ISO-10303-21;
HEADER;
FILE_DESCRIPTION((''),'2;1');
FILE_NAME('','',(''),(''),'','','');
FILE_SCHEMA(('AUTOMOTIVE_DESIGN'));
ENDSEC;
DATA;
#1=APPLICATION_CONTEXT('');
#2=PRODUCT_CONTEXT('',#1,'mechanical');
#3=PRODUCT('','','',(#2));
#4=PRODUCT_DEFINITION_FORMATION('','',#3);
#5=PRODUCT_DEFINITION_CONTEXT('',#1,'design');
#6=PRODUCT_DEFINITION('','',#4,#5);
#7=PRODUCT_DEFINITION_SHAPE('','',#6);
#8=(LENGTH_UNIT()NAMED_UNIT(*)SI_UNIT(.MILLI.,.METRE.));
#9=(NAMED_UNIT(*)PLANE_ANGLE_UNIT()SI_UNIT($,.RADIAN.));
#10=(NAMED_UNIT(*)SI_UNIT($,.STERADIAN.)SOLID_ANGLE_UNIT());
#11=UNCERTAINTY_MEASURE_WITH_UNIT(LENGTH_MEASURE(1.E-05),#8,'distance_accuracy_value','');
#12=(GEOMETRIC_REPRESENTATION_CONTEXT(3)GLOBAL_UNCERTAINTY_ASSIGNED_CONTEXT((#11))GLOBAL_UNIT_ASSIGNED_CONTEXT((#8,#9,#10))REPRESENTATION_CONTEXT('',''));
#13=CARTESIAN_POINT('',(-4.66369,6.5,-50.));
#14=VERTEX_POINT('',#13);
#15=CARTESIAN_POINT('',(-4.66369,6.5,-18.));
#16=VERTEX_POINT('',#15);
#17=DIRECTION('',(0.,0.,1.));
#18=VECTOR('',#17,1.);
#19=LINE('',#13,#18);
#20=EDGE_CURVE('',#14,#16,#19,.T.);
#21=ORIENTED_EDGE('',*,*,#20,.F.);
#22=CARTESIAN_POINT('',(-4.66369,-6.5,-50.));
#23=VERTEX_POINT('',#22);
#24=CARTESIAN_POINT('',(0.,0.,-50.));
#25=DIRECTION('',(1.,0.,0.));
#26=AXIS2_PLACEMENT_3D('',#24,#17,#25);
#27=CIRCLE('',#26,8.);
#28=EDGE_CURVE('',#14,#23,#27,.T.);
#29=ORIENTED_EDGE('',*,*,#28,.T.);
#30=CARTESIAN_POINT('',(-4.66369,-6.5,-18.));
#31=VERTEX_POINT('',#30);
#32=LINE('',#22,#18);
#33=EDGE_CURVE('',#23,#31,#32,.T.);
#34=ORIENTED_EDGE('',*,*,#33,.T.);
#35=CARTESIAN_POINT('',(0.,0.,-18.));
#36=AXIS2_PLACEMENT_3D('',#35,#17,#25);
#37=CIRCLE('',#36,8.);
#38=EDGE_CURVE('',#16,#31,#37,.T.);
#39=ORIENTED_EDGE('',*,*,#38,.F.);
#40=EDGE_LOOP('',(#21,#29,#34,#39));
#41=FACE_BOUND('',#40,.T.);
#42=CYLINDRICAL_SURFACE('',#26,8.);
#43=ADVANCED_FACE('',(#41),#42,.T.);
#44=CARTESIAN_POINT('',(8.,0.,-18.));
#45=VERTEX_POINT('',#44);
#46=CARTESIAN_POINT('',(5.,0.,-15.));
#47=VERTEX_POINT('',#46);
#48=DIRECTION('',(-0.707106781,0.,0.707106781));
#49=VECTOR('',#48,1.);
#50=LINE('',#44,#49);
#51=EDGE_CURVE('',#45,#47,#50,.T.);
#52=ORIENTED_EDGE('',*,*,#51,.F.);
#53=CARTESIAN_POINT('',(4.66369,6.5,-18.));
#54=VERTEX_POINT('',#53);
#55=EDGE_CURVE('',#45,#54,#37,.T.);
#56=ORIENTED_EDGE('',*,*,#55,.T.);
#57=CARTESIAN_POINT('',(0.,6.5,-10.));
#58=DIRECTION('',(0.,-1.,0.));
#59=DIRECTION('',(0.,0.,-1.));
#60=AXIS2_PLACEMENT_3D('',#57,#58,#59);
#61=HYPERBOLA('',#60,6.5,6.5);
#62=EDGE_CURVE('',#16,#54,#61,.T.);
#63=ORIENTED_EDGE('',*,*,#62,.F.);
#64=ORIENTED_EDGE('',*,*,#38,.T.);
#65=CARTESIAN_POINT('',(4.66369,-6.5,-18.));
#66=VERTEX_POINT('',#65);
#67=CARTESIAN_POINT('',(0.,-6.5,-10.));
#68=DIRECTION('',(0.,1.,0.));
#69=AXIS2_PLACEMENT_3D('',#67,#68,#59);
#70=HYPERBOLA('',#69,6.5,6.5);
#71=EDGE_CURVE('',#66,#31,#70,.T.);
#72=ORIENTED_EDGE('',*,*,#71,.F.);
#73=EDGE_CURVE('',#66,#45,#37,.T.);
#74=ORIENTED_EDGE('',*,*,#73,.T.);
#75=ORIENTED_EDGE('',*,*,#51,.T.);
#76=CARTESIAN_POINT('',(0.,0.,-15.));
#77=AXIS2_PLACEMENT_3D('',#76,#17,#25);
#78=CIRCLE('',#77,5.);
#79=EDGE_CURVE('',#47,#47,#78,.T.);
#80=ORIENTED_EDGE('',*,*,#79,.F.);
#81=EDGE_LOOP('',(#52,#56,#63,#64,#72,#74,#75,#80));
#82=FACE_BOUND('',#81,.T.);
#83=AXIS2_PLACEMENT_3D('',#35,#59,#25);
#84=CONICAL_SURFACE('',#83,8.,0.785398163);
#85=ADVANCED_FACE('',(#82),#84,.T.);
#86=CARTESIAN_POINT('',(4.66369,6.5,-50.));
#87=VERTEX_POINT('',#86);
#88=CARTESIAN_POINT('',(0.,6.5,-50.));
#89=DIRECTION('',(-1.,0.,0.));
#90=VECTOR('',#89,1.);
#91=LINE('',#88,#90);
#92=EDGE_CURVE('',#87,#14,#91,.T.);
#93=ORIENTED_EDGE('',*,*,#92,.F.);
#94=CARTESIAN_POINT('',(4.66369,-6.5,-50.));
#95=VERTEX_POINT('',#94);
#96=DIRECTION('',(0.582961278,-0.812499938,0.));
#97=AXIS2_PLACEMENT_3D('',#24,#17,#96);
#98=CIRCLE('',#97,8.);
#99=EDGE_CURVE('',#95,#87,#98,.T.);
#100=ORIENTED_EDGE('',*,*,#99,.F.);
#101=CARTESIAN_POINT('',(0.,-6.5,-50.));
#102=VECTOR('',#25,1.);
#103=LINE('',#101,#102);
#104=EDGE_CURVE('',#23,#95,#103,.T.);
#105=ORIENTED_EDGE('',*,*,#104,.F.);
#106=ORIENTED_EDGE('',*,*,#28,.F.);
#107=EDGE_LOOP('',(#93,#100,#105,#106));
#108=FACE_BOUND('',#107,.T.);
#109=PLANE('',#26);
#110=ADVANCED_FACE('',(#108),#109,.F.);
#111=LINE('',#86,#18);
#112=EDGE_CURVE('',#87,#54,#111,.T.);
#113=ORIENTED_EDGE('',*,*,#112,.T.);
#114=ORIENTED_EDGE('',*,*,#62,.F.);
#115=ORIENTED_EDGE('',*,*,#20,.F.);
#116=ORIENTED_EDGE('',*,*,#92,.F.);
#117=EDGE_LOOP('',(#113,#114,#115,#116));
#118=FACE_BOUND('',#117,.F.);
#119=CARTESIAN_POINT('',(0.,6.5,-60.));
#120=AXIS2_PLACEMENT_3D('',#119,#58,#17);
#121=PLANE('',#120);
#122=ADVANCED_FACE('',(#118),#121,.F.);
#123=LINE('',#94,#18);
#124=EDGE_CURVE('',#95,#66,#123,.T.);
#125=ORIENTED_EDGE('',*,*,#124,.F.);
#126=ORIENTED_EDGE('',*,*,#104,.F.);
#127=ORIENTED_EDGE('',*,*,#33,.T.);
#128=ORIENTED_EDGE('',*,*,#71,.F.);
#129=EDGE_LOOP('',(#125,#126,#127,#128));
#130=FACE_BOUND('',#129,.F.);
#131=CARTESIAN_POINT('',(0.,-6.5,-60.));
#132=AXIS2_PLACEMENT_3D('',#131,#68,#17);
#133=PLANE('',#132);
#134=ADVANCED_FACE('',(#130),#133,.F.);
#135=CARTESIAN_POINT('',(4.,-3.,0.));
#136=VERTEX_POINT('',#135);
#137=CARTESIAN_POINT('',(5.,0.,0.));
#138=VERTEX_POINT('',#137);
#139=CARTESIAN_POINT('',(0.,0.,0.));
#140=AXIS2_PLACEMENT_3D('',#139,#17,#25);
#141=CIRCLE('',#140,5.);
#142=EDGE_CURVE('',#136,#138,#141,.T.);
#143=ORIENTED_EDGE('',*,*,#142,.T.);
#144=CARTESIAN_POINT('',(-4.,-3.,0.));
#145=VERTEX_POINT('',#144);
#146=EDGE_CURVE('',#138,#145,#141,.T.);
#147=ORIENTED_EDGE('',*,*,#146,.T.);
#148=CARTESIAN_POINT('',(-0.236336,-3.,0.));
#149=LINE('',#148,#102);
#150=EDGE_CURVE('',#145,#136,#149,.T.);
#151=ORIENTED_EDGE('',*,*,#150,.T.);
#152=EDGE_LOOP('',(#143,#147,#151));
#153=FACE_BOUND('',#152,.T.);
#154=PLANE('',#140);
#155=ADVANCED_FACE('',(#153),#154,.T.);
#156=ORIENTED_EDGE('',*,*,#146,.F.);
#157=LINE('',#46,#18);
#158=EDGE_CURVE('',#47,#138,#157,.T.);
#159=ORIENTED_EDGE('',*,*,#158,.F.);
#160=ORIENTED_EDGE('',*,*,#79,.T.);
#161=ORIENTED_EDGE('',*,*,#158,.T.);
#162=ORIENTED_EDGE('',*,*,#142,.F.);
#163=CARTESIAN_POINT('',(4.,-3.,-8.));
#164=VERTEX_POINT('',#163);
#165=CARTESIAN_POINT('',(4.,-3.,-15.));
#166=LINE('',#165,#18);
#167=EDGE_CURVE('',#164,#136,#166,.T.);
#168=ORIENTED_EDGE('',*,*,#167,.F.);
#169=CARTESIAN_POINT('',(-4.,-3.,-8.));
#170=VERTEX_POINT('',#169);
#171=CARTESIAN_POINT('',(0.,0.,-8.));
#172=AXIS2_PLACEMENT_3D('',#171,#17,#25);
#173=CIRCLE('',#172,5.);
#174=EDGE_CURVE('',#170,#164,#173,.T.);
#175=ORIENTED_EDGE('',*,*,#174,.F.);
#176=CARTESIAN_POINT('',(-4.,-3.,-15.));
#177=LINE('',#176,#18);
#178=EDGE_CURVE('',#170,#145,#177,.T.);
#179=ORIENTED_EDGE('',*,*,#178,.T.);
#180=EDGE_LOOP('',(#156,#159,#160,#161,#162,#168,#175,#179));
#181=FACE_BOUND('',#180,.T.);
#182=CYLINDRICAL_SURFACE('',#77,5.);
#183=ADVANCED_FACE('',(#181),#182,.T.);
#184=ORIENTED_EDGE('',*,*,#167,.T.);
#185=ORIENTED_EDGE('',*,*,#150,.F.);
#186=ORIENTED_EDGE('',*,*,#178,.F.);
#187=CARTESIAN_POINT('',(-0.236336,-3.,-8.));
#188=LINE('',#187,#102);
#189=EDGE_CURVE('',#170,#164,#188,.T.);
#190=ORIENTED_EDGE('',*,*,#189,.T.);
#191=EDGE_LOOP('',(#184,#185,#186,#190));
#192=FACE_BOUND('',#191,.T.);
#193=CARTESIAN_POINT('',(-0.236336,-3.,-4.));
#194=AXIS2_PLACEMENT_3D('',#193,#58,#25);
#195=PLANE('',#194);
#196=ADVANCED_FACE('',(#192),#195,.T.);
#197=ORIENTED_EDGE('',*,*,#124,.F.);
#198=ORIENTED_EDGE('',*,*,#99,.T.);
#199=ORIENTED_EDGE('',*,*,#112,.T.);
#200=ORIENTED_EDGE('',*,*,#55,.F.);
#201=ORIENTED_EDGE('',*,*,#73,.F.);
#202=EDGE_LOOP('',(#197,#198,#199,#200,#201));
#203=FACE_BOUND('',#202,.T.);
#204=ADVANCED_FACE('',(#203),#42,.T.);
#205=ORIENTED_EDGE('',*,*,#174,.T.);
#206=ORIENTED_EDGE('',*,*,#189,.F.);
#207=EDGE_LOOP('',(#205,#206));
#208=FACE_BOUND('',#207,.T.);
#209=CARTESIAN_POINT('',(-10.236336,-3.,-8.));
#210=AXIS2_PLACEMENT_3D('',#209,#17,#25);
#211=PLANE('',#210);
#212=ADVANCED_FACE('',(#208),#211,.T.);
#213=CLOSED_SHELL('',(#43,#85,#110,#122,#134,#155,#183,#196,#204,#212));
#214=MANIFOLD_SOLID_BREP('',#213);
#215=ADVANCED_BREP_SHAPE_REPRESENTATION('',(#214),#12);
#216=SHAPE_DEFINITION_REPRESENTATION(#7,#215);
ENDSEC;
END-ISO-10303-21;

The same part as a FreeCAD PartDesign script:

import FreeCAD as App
import Part
import Sketcher

doc = App.newDocument("Part")
body = doc.addObject("PartDesign::Body", "Body")

# Sketch on XZ plane
sketch1 = doc.addObject("Sketcher::SketchObject", "Sketch")
body.addObject(sketch1)
sketch1.AttachmentSupport = (doc.XZ_Plane, [""])
sketch1.MapMode = "FlatFace"
sketch1.addGeometry([
    Part.LineSegment(App.Vector(5, 0, 0), App.Vector(0, 0, 0)),  # 0
    Part.LineSegment(App.Vector(0, 0, 0), App.Vector(0, -50, 0)),  # 1
    Part.LineSegment(App.Vector(0, -50, 0), App.Vector(8, -50, 0)),  # 2
    Part.LineSegment(App.Vector(8, -50, 0), App.Vector(8, -18, 0)),  # 3
    Part.LineSegment(App.Vector(8, -18, 0), App.Vector(5, -15, 0)),  # 4
    Part.LineSegment(App.Vector(5, -15, 0), App.Vector(5, 0, 0)),  # 5
], False)
sketch1.addConstraint([
    Sketcher.Constraint("Coincident", 0, 2, 1, 1),
    Sketcher.Constraint("Coincident", 1, 2, 2, 1),
    Sketcher.Constraint("Coincident", 2, 2, 3, 1),
    Sketcher.Constraint("Coincident", 3, 2, 4, 1),
    Sketcher.Constraint("Coincident", 4, 2, 5, 1),
    Sketcher.Constraint("Coincident", 5, 2, 0, 1),
    Sketcher.Constraint("Horizontal", 0),
    Sketcher.Constraint("Vertical", 1),
    Sketcher.Constraint("Horizontal", 2),
    Sketcher.Constraint("Vertical", 3),
    Sketcher.Constraint("Vertical", 5),
    Sketcher.Constraint("Coincident", 0, 2, -1, 1),
    Sketcher.Constraint("DistanceX", 0, 2, 0, 1, 5.0),
    Sketcher.Constraint("DistanceX", 2, 1, 2, 2, 8.0),
    Sketcher.Constraint("DistanceY", 1, 2, 1, 1, 50.0),
    Sketcher.Constraint("DistanceY", 3, 1, 3, 2, 32.0),
    Sketcher.Constraint("DistanceY", 5, 1, 5, 2, 15.0),
])
revolution = doc.addObject("PartDesign::Revolution", "Revolution")
body.addObject(revolution)
revolution.Profile = sketch1
revolution.ReferenceAxis = (sketch1, ["V_Axis"])
revolution.Angle = 360

# Sketch on XZ plane
sketch2 = doc.addObject("Sketcher::SketchObject", "Sketch001")
body.addObject(sketch2)
sketch2.AttachmentSupport = (doc.XZ_Plane, [""])
sketch2.MapMode = "FlatFace"
sketch2.AttachmentOffset = App.Placement(App.Vector(0, 0, 3), App.Rotation())
sketch2.addGeometry([
    Part.LineSegment(App.Vector(-10, 0, 0), App.Vector(-10, -8, 0)),
    Part.LineSegment(App.Vector(-10, -8, 0), App.Vector(10, -8, 0)),
    Part.LineSegment(App.Vector(10, -8, 0), App.Vector(10, 0, 0)),
    Part.LineSegment(App.Vector(10, 0, 0), App.Vector(-10, 0, 0)),
], False)
sketch2.addConstraint([
    Sketcher.Constraint("Coincident", 0, 2, 1, 1),
    Sketcher.Constraint("Coincident", 1, 2, 2, 1),
    Sketcher.Constraint("Coincident", 2, 2, 3, 1),
    Sketcher.Constraint("Coincident", 3, 2, 0, 1),
    Sketcher.Constraint("Vertical", 0),
    Sketcher.Constraint("Horizontal", 1),
    Sketcher.Constraint("Vertical", 2),
    Sketcher.Constraint("Horizontal", 3),
    Sketcher.Constraint("PointOnObject", 2, 2, -1),
    Sketcher.Constraint("DistanceX", 1, 1, 1, 2, 20.0),
    Sketcher.Constraint("DistanceY", 0, 2, 0, 1, 8.0),
    Sketcher.Constraint("DistanceX", 0, 2, -1, 1, 10.236336),
])
pocket1 = doc.addObject("PartDesign::Pocket", "Pocket")
body.addObject(pocket1)
pocket1.Profile = sketch2
pocket1.Length = 10
pocket1.Reversed = True

# Sketch on YZ plane
sketch3 = doc.addObject("Sketcher::SketchObject", "Sketch002")
body.addObject(sketch3)
sketch3.AttachmentSupport = (doc.YZ_Plane, [""])
sketch3.MapMode = "FlatFace"
sketch3.addGeometry([
    Part.LineSegment(App.Vector(6, 0, 0), App.Vector(6, -60, 0)),  # 0
    Part.LineSegment(App.Vector(6, -60, 0), App.Vector(26, -60, 0)),  # 1
    Part.LineSegment(App.Vector(26, -60, 0), App.Vector(26, 0, 0)),  # 2
    Part.LineSegment(App.Vector(26, 0, 0), App.Vector(6, 0, 0)),  # 3
    Part.LineSegment(App.Vector(-26, 0, 0), App.Vector(-26, -60, 0)),  # 4
    Part.LineSegment(App.Vector(-26, -60, 0), App.Vector(-6, -60, 0)),  # 5
    Part.LineSegment(App.Vector(-6, -60, 0), App.Vector(-6, 0, 0)),  # 6
    Part.LineSegment(App.Vector(-6, 0, 0), App.Vector(-26, 0, 0)),  # 7
], False)
sketch3.addConstraint([
    Sketcher.Constraint("Coincident", 0, 2, 1, 1),
    Sketcher.Constraint("Coincident", 1, 2, 2, 1),
    Sketcher.Constraint("Coincident", 2, 2, 3, 1),
    Sketcher.Constraint("Coincident", 3, 2, 0, 1),
    Sketcher.Constraint("Coincident", 4, 2, 5, 1),
    Sketcher.Constraint("Coincident", 5, 2, 6, 1),
    Sketcher.Constraint("Coincident", 6, 2, 7, 1),
    Sketcher.Constraint("Coincident", 7, 2, 4, 1),
    Sketcher.Constraint("Vertical", 0),
    Sketcher.Constraint("Horizontal", 1),
    Sketcher.Constraint("Vertical", 2),
    Sketcher.Constraint("Horizontal", 3),
    Sketcher.Constraint("Vertical", 4),
    Sketcher.Constraint("Horizontal", 5),
    Sketcher.Constraint("Vertical", 6),
    Sketcher.Constraint("Horizontal", 7),
    Sketcher.Constraint("Symmetric", 3, 2, 6, 2, -1, 1),
    Sketcher.Constraint("Symmetric", 1, 2, 4, 2, -2),
    Sketcher.Constraint("PointOnObject", 2, 2, -1),
    Sketcher.Constraint("DistanceY", 0, 2, 0, 1, 60.0),
    Sketcher.Constraint("DistanceX", 5, 2, 0, 2, 12.999999),
    Sketcher.Constraint("DistanceX", 1, 1, 1, 2, 19.943191),
])
pocket2 = doc.addObject("PartDesign::Pocket", "Pocket001")
body.addObject(pocket2)
pocket2.Profile = sketch3
pocket2.Length = 25
pocket2.Midplane = True

doc.recompute()
